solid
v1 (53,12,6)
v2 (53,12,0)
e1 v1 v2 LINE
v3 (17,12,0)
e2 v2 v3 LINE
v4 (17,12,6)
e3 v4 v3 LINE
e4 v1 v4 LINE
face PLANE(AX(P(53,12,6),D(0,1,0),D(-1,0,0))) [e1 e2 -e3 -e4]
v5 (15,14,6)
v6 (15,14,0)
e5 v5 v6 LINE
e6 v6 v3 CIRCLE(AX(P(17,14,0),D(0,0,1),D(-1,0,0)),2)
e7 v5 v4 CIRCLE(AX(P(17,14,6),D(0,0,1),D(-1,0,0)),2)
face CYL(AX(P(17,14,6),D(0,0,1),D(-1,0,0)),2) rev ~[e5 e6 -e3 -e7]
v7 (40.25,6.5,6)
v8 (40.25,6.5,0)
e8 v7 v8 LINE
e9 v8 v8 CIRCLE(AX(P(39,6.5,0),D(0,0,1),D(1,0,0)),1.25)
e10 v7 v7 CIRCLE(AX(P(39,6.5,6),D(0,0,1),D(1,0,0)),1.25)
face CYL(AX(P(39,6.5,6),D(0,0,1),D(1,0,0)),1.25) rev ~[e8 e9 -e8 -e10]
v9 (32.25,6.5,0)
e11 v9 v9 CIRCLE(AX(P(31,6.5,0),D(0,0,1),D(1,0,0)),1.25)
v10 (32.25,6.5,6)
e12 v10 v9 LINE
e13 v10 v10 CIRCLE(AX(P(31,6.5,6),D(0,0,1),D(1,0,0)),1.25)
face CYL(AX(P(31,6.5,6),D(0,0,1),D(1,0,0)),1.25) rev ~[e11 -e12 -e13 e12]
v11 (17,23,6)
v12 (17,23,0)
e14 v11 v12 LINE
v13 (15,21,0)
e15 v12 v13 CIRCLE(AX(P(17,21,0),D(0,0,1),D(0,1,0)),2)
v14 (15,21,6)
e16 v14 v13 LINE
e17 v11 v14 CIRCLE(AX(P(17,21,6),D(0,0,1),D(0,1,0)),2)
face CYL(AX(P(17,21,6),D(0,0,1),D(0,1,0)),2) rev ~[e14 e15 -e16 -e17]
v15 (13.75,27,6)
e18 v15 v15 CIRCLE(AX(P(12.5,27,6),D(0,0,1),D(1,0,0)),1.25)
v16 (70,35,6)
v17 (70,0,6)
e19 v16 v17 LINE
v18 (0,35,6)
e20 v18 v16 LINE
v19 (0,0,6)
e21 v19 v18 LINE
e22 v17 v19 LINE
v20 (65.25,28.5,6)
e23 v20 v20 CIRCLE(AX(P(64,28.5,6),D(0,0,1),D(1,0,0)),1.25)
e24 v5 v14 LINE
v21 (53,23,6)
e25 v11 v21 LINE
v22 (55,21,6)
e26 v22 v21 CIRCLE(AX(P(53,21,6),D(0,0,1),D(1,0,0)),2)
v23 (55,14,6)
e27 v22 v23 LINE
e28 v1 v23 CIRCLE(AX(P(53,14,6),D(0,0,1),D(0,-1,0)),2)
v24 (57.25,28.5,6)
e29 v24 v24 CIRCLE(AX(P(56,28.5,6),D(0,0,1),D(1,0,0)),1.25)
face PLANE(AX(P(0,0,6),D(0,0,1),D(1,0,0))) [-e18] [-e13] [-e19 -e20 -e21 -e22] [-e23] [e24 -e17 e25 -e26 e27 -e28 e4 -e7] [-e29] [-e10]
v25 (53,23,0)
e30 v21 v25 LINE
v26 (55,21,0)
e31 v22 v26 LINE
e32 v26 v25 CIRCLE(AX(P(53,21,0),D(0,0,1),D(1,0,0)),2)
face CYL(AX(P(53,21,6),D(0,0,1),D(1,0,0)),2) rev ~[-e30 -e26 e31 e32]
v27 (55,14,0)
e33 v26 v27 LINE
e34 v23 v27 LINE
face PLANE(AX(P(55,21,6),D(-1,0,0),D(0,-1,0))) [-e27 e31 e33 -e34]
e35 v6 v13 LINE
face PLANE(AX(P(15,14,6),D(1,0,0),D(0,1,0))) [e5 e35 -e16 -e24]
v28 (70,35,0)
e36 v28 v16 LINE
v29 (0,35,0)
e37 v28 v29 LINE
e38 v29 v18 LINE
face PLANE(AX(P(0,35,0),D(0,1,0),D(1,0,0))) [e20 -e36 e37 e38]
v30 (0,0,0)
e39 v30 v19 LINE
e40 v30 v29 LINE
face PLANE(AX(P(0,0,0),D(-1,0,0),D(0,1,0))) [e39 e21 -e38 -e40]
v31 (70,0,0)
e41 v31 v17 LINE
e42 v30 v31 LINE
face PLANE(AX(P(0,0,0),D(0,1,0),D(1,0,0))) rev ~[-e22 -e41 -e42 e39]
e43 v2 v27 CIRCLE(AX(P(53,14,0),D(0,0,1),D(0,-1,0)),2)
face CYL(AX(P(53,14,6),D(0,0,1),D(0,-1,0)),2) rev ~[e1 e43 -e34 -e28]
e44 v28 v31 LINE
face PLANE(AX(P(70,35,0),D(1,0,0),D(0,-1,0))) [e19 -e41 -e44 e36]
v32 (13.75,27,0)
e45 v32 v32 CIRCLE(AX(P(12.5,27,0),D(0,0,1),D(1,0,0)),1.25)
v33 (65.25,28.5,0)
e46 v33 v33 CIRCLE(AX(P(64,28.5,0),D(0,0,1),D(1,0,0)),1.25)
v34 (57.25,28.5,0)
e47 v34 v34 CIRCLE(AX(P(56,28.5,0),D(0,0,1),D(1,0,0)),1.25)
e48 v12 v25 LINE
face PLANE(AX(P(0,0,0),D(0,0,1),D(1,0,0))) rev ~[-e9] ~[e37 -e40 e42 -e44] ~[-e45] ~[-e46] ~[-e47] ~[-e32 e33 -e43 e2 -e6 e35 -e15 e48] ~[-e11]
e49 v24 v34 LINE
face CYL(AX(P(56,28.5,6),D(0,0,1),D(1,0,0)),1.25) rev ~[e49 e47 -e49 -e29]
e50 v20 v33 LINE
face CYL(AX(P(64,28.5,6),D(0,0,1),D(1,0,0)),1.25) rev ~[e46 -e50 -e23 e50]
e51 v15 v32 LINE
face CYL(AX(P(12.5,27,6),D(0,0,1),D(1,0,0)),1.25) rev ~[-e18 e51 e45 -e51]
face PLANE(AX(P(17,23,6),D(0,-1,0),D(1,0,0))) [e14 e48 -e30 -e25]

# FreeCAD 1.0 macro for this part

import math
import FreeCAD as App
import Part
import Sketcher

V = App.Vector
Q = App.Units.Quantity

doc = App.newDocument("Part")
body = doc.addObject("PartDesign::Body", "Body")

# Sketch on XY plane
sketch1 = body.newObject("Sketcher::SketchObject", "Sketch")
sketch1.AttachmentSupport = (doc.getObject("XY_Plane"), [""])
sketch1.MapMode = "FlatFace"
sketch1.addGeometry([
    Part.LineSegment(V(0, 35, 0), V(0, 0, 0)),
    Part.LineSegment(V(0, 0, 0), V(70, 0, 0)),
    Part.LineSegment(V(70, 0, 0), V(70, 35, 0)),
    Part.LineSegment(V(70, 35, 0), V(0, 35, 0)),
], False)
sketch1.addConstraint([
    Sketcher.Constraint("Coincident", 0, 2, 1, 1),
    Sketcher.Constraint("Coincident", 1, 2, 2, 1),
    Sketcher.Constraint("Coincident", 2, 2, 3, 1),
    Sketcher.Constraint("Coincident", 3, 2, 0, 1),
    Sketcher.Constraint("Vertical", 0),
    Sketcher.Constraint("Horizontal", 1),
    Sketcher.Constraint("Vertical", 2),
    Sketcher.Constraint("Horizontal", 3),
    Sketcher.Constraint("Coincident", 0, 2, -1, 1),
    Sketcher.Constraint("DistanceX", 1, 1, 1, 2, Q("70 mm")),
    Sketcher.Constraint("DistanceY", 0, 2, 0, 1, Q("35 mm")),
])
pad1 = body.newObject("PartDesign::Pad", "Pad")
pad1.Profile = sketch1
pad1.Length = 6

# Sketch on XY plane
sketch2 = body.newObject("Sketcher::SketchObject", "Sketch001")
sketch2.AttachmentSupport = (doc.getObject("XY_Plane"), [""])
sketch2.MapMode = "FlatFace"
sketch2.AttachmentOffset = App.Placement(V(0, 0, 6), App.Rotation())
sketch2.addGeometry([
    Part.Circle(V(39, 6.5, 0), V(0, 0, 1), 1.2),
    Part.Circle(V(31, 6.5, 0), V(0, 0, 1), 1.2),
], False)
sketch2.addConstraint([
    Sketcher.Constraint("Equal", 0, 1),
    Sketcher.Constraint("Horizontal", 0, 3, 1, 3),
    Sketcher.Constraint("Diameter", 0, Q("2.5 mm")),
    Sketcher.Constraint("DistanceX", -1, 1, 0, 3, Q("39 mm")),
    Sketcher.Constraint("DistanceX", -1, 1, 1, 3, Q("31 mm")),
    Sketcher.Constraint("DistanceY", -1, 1, 0, 3, Q("6.5 mm")),
])
pocket1 = body.newObject("PartDesign::Pocket", "Pocket")
pocket1.Profile = sketch2
pocket1.Length = 6

# Sketch on XY plane
sketch3 = body.newObject("Sketcher::SketchObject", "Sketch002")
sketch3.AttachmentSupport = (doc.getObject("XY_Plane"), [""])
sketch3.MapMode = "FlatFace"
sketch3.AttachmentOffset = App.Placement(V(0, 0, 6), App.Rotation())
sketch3.addGeometry([
    Part.Circle(V(56, 28.5, 0), V(0, 0, 1), 1.2),
    Part.Circle(V(64, 28.5, 0), V(0, 0, 1), 1.2),
    Part.Circle(V(12.5, 27, 0), V(0, 0, 1), 1.2),
], False)
sketch3.addConstraint([
    Sketcher.Constraint("Equal", 0, 1),
    Sketcher.Constraint("Equal", 1, 2),
    Sketcher.Constraint("Horizontal", 0, 3, 1, 3),
    Sketcher.Constraint("Diameter", 0, Q("2.5 mm")),
    Sketcher.Constraint("DistanceX", -1, 1, 0, 3, Q("56 mm")),
    Sketcher.Constraint("DistanceX", -1, 1, 1, 3, Q("64 mm")),
    Sketcher.Constraint("DistanceY", -1, 1, 2, 3, Q("27 mm")),
    Sketcher.Constraint("DistanceY", -1, 1, 0, 3, Q("28.5 mm")),
    Sketcher.Constraint("DistanceX", -1, 1, 2, 3, Q("12.5 mm")),
])
pocket2 = body.newObject("PartDesign::Pocket", "Pocket001")
pocket2.Profile = sketch3
pocket2.Length = 6

# Sketch on XY plane
sketch4 = body.newObject("Sketcher::SketchObject", "Sketch003")
sketch4.AttachmentSupport = (doc.getObject("XY_Plane"), [""])
sketch4.MapMode = "FlatFace"
sketch4.AttachmentOffset = App.Placement(V(0, 0, 6), App.Rotation())
sketch4.addGeometry([
    Part.LineSegment(V(15, 21, 0), V(15, 14, 0)),  # 0
    Part.ArcOfCircle(Part.Circle(V(17, 14, 0), V(0, 0, 1), 2), math.radians(180), math.radians(270)),  # 1
    Part.LineSegment(V(17, 12, 0), V(53, 12, 0)),  # 2
    Part.ArcOfCircle(Part.Circle(V(53, 14, 0), V(0, 0, 1), 2), math.radians(-90), math.radians(0)),  # 3
    Part.LineSegment(V(55, 14, 0), V(55, 21, 0)),  # 4
    Part.ArcOfCircle(Part.Circle(V(53, 21, 0), V(0, 0, 1), 2), math.radians(0), math.radians(90)),  # 5
    Part.LineSegment(V(53, 23, 0), V(17, 23, 0)),  # 6
    Part.ArcOfCircle(Part.Circle(V(17, 21, 0), V(0, 0, 1), 2), math.radians(90), math.radians(180)),  # 7
], False)
sketch4.addConstraint([
    Sketcher.Constraint("Tangent", 0, 2, 1, 1),
    Sketcher.Constraint("Tangent", 1, 2, 2, 1),
    Sketcher.Constraint("Tangent", 2, 2, 3, 1),
    Sketcher.Constraint("Tangent", 3, 2, 4, 1),
    Sketcher.Constraint("Tangent", 4, 2, 5, 1),
    Sketcher.Constraint("Tangent", 5, 2, 6, 1),
    Sketcher.Constraint("Tangent", 6, 2, 7, 1),
    Sketcher.Constraint("Tangent", 7, 2, 0, 1),
    Sketcher.Constraint("Vertical", 0),
    Sketcher.Constraint("Horizontal", 2),
    Sketcher.Constraint("Vertical", 4),
    Sketcher.Constraint("Horizontal", 6),
    Sketcher.Constraint("Equal", 1, 3),
    Sketcher.Constraint("Equal", 3, 5),
    Sketcher.Constraint("Equal", 5, 7),
    Sketcher.Constraint("Radius", 1, Q("2 mm")),
    Sketcher.Constraint("DistanceX", 2, 1, 2, 2, Q("36 mm")),
    Sketcher.Constraint("DistanceY", 0, 2, 0, 1, Q("7 mm")),
    Sketcher.Constraint("DistanceX", -1, 1, 1, 3, Q("17 mm")),
    Sketcher.Constraint("DistanceY", -1, 1, 1, 3, Q("14 mm")),
])
pocket3 = body.newObject("PartDesign::Pocket", "Pocket002")
pocket3.Profile = sketch4
pocket3.Length = 6

doc.recompute()
